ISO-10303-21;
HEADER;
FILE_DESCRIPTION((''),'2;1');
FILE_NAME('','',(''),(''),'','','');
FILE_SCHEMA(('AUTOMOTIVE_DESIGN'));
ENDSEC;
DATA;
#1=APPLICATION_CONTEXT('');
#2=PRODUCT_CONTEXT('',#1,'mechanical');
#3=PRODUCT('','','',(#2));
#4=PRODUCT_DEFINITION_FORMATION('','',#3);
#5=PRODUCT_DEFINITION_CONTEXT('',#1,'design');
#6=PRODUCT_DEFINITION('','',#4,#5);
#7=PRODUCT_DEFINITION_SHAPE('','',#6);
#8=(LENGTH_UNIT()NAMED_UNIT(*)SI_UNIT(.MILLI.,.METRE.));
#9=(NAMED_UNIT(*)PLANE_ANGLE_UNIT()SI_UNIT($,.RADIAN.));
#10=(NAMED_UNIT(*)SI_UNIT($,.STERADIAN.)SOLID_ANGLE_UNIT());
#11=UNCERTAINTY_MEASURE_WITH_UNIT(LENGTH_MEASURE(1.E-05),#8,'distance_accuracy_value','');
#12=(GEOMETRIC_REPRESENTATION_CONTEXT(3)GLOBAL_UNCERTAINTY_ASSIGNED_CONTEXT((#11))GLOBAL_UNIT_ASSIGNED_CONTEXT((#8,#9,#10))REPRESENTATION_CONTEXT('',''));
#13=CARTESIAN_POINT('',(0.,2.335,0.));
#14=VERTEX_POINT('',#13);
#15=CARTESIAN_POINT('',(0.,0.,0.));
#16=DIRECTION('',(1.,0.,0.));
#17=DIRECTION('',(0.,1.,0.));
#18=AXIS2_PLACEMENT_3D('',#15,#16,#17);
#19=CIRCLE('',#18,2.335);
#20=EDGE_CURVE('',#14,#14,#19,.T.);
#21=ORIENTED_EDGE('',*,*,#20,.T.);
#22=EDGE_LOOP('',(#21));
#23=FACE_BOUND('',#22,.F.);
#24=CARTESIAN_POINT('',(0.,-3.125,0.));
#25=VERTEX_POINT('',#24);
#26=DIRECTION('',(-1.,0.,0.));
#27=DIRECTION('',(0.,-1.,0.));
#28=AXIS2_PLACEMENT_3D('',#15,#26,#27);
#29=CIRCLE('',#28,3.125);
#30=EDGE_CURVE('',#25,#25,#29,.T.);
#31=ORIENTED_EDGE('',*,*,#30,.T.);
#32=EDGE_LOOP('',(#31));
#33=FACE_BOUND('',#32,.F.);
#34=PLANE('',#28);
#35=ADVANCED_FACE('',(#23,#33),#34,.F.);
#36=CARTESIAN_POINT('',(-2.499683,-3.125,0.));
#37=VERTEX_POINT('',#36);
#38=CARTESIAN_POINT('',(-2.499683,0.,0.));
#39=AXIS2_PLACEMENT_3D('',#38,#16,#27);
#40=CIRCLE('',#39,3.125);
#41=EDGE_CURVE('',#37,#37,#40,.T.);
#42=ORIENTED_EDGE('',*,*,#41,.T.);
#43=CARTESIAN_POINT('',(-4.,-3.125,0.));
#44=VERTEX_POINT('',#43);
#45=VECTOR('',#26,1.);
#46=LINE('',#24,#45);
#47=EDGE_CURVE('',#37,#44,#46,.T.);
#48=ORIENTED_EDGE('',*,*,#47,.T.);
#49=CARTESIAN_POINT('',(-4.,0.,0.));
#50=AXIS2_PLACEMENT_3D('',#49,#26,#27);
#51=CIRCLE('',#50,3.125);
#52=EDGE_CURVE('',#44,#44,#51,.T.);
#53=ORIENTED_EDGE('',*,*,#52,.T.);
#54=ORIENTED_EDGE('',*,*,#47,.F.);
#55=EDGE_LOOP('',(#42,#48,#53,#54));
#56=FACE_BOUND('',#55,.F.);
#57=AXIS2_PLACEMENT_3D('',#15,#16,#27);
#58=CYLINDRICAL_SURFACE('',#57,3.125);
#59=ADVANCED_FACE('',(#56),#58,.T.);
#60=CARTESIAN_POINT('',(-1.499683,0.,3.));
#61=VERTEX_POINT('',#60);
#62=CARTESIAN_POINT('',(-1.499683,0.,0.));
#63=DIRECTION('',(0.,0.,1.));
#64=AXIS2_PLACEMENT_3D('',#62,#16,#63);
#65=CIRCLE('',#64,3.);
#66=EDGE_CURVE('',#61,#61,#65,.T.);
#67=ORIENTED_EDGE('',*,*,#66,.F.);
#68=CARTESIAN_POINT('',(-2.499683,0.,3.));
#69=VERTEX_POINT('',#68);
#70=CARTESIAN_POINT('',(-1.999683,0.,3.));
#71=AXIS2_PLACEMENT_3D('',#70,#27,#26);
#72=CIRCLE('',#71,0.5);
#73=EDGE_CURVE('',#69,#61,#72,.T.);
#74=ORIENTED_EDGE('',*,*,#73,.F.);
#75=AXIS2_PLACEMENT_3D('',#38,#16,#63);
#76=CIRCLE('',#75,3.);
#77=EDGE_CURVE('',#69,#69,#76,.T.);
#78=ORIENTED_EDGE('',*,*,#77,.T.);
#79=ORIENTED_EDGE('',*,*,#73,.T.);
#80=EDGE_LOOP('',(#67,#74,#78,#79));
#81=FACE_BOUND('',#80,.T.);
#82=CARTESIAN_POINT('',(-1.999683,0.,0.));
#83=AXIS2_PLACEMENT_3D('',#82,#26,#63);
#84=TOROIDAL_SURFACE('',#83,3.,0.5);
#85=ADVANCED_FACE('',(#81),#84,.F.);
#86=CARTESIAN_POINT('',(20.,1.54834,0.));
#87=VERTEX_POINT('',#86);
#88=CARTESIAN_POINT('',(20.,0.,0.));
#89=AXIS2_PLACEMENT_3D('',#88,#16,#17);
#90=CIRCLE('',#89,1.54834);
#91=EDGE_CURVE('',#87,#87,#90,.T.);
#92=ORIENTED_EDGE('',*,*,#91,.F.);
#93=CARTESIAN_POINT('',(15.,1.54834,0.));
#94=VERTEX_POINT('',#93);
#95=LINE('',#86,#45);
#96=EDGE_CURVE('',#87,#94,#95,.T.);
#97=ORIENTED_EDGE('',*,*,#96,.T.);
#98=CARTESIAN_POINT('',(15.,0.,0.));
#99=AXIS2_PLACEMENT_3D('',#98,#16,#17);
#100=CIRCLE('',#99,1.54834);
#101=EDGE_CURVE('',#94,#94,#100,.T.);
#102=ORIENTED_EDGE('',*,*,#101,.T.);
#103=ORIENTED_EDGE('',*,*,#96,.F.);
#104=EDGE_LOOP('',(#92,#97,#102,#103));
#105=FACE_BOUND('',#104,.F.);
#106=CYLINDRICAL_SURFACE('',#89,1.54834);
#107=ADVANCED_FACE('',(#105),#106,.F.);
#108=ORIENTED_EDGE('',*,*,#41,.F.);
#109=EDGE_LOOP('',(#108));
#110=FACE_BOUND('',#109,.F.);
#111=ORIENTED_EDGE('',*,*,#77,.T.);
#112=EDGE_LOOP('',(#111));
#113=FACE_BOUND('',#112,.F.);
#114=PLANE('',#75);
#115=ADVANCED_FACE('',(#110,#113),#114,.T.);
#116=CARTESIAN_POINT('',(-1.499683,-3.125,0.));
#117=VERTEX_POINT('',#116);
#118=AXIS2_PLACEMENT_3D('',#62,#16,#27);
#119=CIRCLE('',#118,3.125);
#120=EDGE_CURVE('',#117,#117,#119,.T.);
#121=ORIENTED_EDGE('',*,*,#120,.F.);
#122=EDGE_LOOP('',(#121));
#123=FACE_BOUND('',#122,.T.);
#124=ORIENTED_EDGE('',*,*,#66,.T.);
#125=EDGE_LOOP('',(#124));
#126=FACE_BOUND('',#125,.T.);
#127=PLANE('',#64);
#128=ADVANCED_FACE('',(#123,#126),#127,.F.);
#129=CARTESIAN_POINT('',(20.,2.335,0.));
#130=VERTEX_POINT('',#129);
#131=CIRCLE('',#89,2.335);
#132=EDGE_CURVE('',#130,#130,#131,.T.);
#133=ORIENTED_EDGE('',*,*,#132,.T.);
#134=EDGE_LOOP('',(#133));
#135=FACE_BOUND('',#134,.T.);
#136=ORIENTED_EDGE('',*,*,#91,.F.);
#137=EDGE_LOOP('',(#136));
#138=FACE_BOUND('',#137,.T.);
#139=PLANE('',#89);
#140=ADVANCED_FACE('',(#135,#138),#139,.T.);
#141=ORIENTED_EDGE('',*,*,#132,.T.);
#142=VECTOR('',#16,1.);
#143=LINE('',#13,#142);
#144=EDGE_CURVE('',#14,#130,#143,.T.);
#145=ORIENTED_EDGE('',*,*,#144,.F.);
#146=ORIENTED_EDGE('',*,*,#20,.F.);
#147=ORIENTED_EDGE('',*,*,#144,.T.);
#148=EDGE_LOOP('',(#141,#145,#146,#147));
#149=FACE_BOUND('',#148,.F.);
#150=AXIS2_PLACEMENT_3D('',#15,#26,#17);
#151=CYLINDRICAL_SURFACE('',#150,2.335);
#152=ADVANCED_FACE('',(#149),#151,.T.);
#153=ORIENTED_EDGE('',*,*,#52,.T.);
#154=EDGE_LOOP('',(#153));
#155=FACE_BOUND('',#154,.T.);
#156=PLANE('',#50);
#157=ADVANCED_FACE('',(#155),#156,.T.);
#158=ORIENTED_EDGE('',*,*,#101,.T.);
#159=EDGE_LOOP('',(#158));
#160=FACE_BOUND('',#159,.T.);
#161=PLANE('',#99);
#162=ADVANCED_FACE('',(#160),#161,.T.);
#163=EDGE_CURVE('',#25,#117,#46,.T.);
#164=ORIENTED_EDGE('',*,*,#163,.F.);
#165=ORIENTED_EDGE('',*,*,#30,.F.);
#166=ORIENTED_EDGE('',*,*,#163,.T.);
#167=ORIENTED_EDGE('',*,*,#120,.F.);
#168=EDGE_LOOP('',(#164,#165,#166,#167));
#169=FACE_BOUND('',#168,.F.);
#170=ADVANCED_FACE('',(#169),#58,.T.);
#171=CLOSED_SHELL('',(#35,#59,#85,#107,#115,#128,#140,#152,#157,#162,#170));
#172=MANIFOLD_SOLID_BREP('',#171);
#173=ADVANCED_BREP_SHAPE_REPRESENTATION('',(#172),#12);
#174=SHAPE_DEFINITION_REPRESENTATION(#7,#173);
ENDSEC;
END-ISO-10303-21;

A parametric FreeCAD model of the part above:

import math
import FreeCAD as App
import Part
import Sketcher
Q = App.Units.Quantity

doc = App.newDocument("Part")
body = doc.addObject("PartDesign::Body", "Body")

sketch1 = body.newObject("Sketcher::SketchObject", "Sketch")
sketch1.AttachmentSupport = (doc.getObject("YZ_Plane"), [""])
sketch1.MapMode = "FlatFace"
sketch1.addGeometry(Part.Circle(App.Vector(0, 0, 0), App.Vector(0, 0, 1), 2.335), False)
sketch1.addConstraint(Sketcher.Constraint("Coincident", 0, 3, -1, 1))
sketch1.addConstraint(Sketcher.Constraint("Diameter", 0, Q("4.67 mm")))
pad1 = body.newObject("PartDesign::Pad", "Pad")
pad1.Profile = sketch1
pad1.Length = 20

sketch2 = body.newObject("Sketcher::SketchObject", "Sketch001")
sketch2.AttachmentSupport = (doc.getObject("YZ_Plane"), [""])
sketch2.MapMode = "FlatFace"
sketch2.addGeometry(Part.Circle(App.Vector(0, 0, 0), App.Vector(0, 0, 1), 3.125), False)
sketch2.addConstraint(Sketcher.Constraint("Coincident", 0, 3, -1, 1))
sketch2.addConstraint(Sketcher.Constraint("Diameter", 0, Q("6.25 mm")))
pad2 = body.newObject("PartDesign::Pad", "Pad001")
pad2.Profile = sketch2
pad2.Length = 4
pad2.Reversed = True

sketch3 = body.newObject("Sketcher::SketchObject", "Sketch002")
sketch3.AttachmentSupport = (doc.getObject("XZ_Plane"), [""])
sketch3.MapMode = "FlatFace"
sketch3.addGeometry(Part.LineSegment(App.Vector(-1.499683, 3, 0), App.Vector(-1.499683, 4.443126, 0)), False)
sketch3.addGeometry(Part.LineSegment(App.Vector(-1.499683, 4.443126, 0), App.Vector(-2.499683, 4.443126, 0)), False)
sketch3.addGeometry(Part.LineSegment(App.Vector(-2.499683, 4.443126, 0), App.Vector(-2.499683, 3, 0)), False)
sketch3.addGeometry(Part.ArcOfCircle(Part.Circle(App.Vector(-1.999683, 3, 0), App.Vector(0, 0, 1), 0.5), math.radians(180), math.radians(360)), False)
sketch3.addConstraint(Sketcher.Constraint("Coincident", 0, 2, 1, 1))
sketch3.addConstraint(Sketcher.Constraint("Coincident", 1, 2, 2, 1))
sketch3.addConstraint(Sketcher.Constraint("Tangent", 2, 2, 3, 1))
sketch3.addConstraint(Sketcher.Constraint("Tangent", 3, 2, 0, 1))
sketch3.addConstraint(Sketcher.Constraint("Vertical", 0))
sketch3.addConstraint(Sketcher.Constraint("Horizontal", 1))
sketch3.addConstraint(Sketcher.Constraint("Vertical", 2))
sketch3.addConstraint(Sketcher.Constraint("Radius", 3, Q("0.5 mm")))
sketch3.addConstraint(Sketcher.Constraint("DistanceY", -1, 1, 3, 3, Q("3 mm")))
sketch3.addConstraint(Sketcher.Constraint("DistanceY", 0, 1, 0, 2, Q("1.443126 mm")))
sketch3.addConstraint(Sketcher.Constraint("DistanceX", 3, 3, -1, 1, Q("1.999683 mm")))
groove = body.newObject("PartDesign::Groove", "Groove")
groove.Profile = sketch3
groove.ReferenceAxis = (sketch3, ["H_Axis"])
groove.Angle = 360

sketch4 = body.newObject("Sketcher::SketchObject", "Sketch003")
sketch4.AttachmentSupport = (doc.getObject("YZ_Plane"), [""])
sketch4.MapMode = "FlatFace"
sketch4.AttachmentOffset = App.Placement(App.Vector(0, 0, 20), App.Rotation())
sketch4.addGeometry(Part.Circle(App.Vector(0, 0, 0), App.Vector(0, 0, 1), 1.54834), False)
sketch4.addConstraint(Sketcher.Constraint("Coincident", 0, 3, -1, 1))
sketch4.addConstraint(Sketcher.Constraint("Diameter", 0, Q("3.09668 mm")))
pocket1 = body.newObject("PartDesign::Pocket", "Pocket")
pocket1.Profile = sketch4
pocket1.Length = 5

doc.recompute()
